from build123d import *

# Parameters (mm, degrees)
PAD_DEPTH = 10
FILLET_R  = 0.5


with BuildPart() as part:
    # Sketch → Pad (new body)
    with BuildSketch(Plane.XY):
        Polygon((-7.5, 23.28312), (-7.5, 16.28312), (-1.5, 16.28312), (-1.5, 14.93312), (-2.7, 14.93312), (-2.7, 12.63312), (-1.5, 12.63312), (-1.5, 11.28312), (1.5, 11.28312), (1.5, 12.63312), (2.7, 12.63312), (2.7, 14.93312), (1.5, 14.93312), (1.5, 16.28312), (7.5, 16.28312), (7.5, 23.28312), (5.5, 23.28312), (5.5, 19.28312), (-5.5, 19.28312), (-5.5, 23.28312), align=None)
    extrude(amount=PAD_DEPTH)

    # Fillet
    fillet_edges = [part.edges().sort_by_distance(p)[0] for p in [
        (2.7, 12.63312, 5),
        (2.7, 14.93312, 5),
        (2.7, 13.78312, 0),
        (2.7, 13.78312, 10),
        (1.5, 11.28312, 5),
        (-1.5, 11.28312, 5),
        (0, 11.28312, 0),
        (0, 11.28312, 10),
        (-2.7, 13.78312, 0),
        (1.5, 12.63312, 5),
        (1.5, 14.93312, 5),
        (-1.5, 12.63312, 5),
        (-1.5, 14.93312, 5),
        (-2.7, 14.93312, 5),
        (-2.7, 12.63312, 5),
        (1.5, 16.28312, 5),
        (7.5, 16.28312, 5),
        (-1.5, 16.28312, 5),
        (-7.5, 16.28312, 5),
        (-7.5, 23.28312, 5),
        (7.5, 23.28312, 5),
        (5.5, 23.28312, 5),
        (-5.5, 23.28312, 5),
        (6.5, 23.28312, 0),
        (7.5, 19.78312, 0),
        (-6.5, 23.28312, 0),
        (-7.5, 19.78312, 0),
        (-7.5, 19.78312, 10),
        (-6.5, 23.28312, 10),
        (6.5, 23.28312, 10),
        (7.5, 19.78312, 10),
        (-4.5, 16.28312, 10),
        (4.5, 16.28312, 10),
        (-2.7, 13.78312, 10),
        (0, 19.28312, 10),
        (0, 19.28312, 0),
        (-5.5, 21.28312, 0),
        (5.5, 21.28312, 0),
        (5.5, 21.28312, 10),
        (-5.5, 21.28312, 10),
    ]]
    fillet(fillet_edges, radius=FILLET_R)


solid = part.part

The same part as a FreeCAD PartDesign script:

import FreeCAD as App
import Part
import Sketcher


def edges_at(feature, points):
    """Names of the edges that pass closest to the given points."""
    edges = feature.Shape.Edges
    near = lambda p: min(range(len(edges)), key=lambda i: edges[i].distToShape(Part.Vertex(*p))[0])
    return sorted({f"Edge{near(p) + 1}" for p in points})


def add_polygon(sketch, points):
    """Adds a closed chain of lines whose ends are joined by coincident constraints."""
    first, n = sketch.GeometryCount, len(points)
    for a, b in zip(points, points[1:] + points[:1]):
        sketch.addGeometry(Part.LineSegment(App.Vector(*a, 0), App.Vector(*b, 0)), False)
    for i in range(n):
        sketch.addConstraint(Sketcher.Constraint("Coincident", first + i, 2, first + (i + 1) % n, 1))

doc = App.newDocument("Part")
body = doc.addObject("PartDesign::Body", "Body")

# Sketch on XY plane
sketch1 = body.newObject("Sketcher::SketchObject", "Sketch")
sketch1.AttachmentSupport = (doc.getObject("XY_Plane"), [""])
sketch1.MapMode = "FlatFace"
add_polygon(sketch1, [(-7.5, 23.3), (-7.5, 16.3), (-1.5, 16.3), (-1.5, 14.9), (-2.7, 14.9), (-2.7, 12.6), (-1.5, 12.6), (-1.5, 11.3), (1.5, 11.3), (1.5, 12.6), (2.7, 12.6), (2.7, 14.9), (1.5, 14.9), (1.5, 16.3), (7.5, 16.3), (7.5, 23.3), (5.5, 23.3), (5.5, 19.3), (-5.5, 19.3), (-5.5, 23.3)])  # lines 0-19
sketch1.addConstraint([
    Sketcher.Constraint("Vertical", 0),
    Sketcher.Constraint("Horizontal", 1),
    Sketcher.Constraint("Vertical", 2),
    Sketcher.Constraint("Horizontal", 3),
    Sketcher.Constraint("Vertical", 4),
    Sketcher.Constraint("Horizontal", 5),
    Sketcher.Constraint("Vertical", 6),
    Sketcher.Constraint("Horizontal", 7),
    Sketcher.Constraint("Vertical", 8),
    Sketcher.Constraint("Horizontal", 9),
    Sketcher.Constraint("Vertical", 10),
    Sketcher.Constraint("Horizontal", 11),
    Sketcher.Constraint("Vertical", 12),
    Sketcher.Constraint("Horizontal", 13),
    Sketcher.Constraint("Vertical", 14),
    Sketcher.Constraint("Horizontal", 15),
    Sketcher.Constraint("Vertical", 16),
    Sketcher.Constraint("Horizontal", 17),
    Sketcher.Constraint("Vertical", 18),
    Sketcher.Constraint("Horizontal", 19),
    Sketcher.Constraint("Symmetric", 5, 2, 8, 2, -2),
    Sketcher.Constraint("Symmetric", 3, 2, 10, 2, -2),
    Sketcher.Constraint("Symmetric", 1, 2, 12, 2, -2),
    Sketcher.Constraint("Symmetric", 15, 2, 18, 2, -2),
    Sketcher.Constraint("Vertical", 2, 2, 5, 2),
    Sketcher.Constraint("Equal", 1, 13),
    Sketcher.Constraint("Equal", 2, 6),
    Sketcher.Constraint("DistanceX", 1, 1, 1, 2, 6.0),
    Sketcher.Constraint("DistanceX", 7, 1, 7, 2, 3.0),
    Sketcher.Constraint("DistanceX", 15, 2, 15, 1, 2.0),
    Sketcher.Constraint("DistanceY", 0, 2, 0, 1, 7.0),
    Sketcher.Constraint("DistanceY", 16, 2, 16, 1, 4.0),
    Sketcher.Constraint("DistanceX", 3, 2, 3, 1, 1.2),
    Sketcher.Constraint("DistanceY", 4, 2, 4, 1, 2.3),
    Sketcher.Constraint("DistanceY", 6, 2, 1, 2, 5.0),
    Sketcher.Constraint("DistanceY", -1, 1, 0, 2, 16.28312),
])
pad1 = body.newObject("PartDesign::Pad", "Pad")
pad1.Profile = sketch1
pad1.Length = 10
doc.recompute()

fillet = body.newObject("PartDesign::Fillet", "Fillet")
fillet.Base = (pad1, edges_at(pad1, [
    (2.7, 12.633, 5),
    (2.7, 14.933, 5),
    (2.7, 13.783, 0),
    (2.7, 13.783, 10),
    (1.5, 11.283, 5),
    (-1.5, 11.283, 5),
    (0, 11.283, 0),
    (0, 11.283, 10),
    (-2.7, 13.783, 0),
    (1.5, 12.633, 5),
    (1.5, 14.933, 5),
    (-1.5, 12.633, 5),
    (-1.5, 14.933, 5),
    (-2.7, 14.933, 5),
    (-2.7, 12.633, 5),
    (1.5, 16.283, 5),
    (7.5, 16.283, 5),
    (-1.5, 16.283, 5),
    (-7.5, 16.283, 5),
    (-7.5, 23.283, 5),
    (7.5, 23.283, 5),
    (5.5, 23.283, 5),
    (-5.5, 23.283, 5),
    (6.5, 23.283, 0),
    (7.5, 19.783, 0),
    (-6.5, 23.283, 0),
    (-7.5, 19.783, 0),
    (-7.5, 19.783, 10),
    (-6.5, 23.283, 10),
    (6.5, 23.283, 10),
    (7.5, 19.783, 10),
    (-4.5, 16.283, 10),
    (4.5, 16.283, 10),
    (-2.7, 13.783, 10),
    (0, 19.283, 10),
    (0, 19.283, 0),
    (-5.5, 21.283, 0),
    (5.5, 21.283, 0),
    (5.5, 21.283, 10),
    (-5.5, 21.283, 10),
]))
fillet.Radius = 0.5

doc.recompute()
